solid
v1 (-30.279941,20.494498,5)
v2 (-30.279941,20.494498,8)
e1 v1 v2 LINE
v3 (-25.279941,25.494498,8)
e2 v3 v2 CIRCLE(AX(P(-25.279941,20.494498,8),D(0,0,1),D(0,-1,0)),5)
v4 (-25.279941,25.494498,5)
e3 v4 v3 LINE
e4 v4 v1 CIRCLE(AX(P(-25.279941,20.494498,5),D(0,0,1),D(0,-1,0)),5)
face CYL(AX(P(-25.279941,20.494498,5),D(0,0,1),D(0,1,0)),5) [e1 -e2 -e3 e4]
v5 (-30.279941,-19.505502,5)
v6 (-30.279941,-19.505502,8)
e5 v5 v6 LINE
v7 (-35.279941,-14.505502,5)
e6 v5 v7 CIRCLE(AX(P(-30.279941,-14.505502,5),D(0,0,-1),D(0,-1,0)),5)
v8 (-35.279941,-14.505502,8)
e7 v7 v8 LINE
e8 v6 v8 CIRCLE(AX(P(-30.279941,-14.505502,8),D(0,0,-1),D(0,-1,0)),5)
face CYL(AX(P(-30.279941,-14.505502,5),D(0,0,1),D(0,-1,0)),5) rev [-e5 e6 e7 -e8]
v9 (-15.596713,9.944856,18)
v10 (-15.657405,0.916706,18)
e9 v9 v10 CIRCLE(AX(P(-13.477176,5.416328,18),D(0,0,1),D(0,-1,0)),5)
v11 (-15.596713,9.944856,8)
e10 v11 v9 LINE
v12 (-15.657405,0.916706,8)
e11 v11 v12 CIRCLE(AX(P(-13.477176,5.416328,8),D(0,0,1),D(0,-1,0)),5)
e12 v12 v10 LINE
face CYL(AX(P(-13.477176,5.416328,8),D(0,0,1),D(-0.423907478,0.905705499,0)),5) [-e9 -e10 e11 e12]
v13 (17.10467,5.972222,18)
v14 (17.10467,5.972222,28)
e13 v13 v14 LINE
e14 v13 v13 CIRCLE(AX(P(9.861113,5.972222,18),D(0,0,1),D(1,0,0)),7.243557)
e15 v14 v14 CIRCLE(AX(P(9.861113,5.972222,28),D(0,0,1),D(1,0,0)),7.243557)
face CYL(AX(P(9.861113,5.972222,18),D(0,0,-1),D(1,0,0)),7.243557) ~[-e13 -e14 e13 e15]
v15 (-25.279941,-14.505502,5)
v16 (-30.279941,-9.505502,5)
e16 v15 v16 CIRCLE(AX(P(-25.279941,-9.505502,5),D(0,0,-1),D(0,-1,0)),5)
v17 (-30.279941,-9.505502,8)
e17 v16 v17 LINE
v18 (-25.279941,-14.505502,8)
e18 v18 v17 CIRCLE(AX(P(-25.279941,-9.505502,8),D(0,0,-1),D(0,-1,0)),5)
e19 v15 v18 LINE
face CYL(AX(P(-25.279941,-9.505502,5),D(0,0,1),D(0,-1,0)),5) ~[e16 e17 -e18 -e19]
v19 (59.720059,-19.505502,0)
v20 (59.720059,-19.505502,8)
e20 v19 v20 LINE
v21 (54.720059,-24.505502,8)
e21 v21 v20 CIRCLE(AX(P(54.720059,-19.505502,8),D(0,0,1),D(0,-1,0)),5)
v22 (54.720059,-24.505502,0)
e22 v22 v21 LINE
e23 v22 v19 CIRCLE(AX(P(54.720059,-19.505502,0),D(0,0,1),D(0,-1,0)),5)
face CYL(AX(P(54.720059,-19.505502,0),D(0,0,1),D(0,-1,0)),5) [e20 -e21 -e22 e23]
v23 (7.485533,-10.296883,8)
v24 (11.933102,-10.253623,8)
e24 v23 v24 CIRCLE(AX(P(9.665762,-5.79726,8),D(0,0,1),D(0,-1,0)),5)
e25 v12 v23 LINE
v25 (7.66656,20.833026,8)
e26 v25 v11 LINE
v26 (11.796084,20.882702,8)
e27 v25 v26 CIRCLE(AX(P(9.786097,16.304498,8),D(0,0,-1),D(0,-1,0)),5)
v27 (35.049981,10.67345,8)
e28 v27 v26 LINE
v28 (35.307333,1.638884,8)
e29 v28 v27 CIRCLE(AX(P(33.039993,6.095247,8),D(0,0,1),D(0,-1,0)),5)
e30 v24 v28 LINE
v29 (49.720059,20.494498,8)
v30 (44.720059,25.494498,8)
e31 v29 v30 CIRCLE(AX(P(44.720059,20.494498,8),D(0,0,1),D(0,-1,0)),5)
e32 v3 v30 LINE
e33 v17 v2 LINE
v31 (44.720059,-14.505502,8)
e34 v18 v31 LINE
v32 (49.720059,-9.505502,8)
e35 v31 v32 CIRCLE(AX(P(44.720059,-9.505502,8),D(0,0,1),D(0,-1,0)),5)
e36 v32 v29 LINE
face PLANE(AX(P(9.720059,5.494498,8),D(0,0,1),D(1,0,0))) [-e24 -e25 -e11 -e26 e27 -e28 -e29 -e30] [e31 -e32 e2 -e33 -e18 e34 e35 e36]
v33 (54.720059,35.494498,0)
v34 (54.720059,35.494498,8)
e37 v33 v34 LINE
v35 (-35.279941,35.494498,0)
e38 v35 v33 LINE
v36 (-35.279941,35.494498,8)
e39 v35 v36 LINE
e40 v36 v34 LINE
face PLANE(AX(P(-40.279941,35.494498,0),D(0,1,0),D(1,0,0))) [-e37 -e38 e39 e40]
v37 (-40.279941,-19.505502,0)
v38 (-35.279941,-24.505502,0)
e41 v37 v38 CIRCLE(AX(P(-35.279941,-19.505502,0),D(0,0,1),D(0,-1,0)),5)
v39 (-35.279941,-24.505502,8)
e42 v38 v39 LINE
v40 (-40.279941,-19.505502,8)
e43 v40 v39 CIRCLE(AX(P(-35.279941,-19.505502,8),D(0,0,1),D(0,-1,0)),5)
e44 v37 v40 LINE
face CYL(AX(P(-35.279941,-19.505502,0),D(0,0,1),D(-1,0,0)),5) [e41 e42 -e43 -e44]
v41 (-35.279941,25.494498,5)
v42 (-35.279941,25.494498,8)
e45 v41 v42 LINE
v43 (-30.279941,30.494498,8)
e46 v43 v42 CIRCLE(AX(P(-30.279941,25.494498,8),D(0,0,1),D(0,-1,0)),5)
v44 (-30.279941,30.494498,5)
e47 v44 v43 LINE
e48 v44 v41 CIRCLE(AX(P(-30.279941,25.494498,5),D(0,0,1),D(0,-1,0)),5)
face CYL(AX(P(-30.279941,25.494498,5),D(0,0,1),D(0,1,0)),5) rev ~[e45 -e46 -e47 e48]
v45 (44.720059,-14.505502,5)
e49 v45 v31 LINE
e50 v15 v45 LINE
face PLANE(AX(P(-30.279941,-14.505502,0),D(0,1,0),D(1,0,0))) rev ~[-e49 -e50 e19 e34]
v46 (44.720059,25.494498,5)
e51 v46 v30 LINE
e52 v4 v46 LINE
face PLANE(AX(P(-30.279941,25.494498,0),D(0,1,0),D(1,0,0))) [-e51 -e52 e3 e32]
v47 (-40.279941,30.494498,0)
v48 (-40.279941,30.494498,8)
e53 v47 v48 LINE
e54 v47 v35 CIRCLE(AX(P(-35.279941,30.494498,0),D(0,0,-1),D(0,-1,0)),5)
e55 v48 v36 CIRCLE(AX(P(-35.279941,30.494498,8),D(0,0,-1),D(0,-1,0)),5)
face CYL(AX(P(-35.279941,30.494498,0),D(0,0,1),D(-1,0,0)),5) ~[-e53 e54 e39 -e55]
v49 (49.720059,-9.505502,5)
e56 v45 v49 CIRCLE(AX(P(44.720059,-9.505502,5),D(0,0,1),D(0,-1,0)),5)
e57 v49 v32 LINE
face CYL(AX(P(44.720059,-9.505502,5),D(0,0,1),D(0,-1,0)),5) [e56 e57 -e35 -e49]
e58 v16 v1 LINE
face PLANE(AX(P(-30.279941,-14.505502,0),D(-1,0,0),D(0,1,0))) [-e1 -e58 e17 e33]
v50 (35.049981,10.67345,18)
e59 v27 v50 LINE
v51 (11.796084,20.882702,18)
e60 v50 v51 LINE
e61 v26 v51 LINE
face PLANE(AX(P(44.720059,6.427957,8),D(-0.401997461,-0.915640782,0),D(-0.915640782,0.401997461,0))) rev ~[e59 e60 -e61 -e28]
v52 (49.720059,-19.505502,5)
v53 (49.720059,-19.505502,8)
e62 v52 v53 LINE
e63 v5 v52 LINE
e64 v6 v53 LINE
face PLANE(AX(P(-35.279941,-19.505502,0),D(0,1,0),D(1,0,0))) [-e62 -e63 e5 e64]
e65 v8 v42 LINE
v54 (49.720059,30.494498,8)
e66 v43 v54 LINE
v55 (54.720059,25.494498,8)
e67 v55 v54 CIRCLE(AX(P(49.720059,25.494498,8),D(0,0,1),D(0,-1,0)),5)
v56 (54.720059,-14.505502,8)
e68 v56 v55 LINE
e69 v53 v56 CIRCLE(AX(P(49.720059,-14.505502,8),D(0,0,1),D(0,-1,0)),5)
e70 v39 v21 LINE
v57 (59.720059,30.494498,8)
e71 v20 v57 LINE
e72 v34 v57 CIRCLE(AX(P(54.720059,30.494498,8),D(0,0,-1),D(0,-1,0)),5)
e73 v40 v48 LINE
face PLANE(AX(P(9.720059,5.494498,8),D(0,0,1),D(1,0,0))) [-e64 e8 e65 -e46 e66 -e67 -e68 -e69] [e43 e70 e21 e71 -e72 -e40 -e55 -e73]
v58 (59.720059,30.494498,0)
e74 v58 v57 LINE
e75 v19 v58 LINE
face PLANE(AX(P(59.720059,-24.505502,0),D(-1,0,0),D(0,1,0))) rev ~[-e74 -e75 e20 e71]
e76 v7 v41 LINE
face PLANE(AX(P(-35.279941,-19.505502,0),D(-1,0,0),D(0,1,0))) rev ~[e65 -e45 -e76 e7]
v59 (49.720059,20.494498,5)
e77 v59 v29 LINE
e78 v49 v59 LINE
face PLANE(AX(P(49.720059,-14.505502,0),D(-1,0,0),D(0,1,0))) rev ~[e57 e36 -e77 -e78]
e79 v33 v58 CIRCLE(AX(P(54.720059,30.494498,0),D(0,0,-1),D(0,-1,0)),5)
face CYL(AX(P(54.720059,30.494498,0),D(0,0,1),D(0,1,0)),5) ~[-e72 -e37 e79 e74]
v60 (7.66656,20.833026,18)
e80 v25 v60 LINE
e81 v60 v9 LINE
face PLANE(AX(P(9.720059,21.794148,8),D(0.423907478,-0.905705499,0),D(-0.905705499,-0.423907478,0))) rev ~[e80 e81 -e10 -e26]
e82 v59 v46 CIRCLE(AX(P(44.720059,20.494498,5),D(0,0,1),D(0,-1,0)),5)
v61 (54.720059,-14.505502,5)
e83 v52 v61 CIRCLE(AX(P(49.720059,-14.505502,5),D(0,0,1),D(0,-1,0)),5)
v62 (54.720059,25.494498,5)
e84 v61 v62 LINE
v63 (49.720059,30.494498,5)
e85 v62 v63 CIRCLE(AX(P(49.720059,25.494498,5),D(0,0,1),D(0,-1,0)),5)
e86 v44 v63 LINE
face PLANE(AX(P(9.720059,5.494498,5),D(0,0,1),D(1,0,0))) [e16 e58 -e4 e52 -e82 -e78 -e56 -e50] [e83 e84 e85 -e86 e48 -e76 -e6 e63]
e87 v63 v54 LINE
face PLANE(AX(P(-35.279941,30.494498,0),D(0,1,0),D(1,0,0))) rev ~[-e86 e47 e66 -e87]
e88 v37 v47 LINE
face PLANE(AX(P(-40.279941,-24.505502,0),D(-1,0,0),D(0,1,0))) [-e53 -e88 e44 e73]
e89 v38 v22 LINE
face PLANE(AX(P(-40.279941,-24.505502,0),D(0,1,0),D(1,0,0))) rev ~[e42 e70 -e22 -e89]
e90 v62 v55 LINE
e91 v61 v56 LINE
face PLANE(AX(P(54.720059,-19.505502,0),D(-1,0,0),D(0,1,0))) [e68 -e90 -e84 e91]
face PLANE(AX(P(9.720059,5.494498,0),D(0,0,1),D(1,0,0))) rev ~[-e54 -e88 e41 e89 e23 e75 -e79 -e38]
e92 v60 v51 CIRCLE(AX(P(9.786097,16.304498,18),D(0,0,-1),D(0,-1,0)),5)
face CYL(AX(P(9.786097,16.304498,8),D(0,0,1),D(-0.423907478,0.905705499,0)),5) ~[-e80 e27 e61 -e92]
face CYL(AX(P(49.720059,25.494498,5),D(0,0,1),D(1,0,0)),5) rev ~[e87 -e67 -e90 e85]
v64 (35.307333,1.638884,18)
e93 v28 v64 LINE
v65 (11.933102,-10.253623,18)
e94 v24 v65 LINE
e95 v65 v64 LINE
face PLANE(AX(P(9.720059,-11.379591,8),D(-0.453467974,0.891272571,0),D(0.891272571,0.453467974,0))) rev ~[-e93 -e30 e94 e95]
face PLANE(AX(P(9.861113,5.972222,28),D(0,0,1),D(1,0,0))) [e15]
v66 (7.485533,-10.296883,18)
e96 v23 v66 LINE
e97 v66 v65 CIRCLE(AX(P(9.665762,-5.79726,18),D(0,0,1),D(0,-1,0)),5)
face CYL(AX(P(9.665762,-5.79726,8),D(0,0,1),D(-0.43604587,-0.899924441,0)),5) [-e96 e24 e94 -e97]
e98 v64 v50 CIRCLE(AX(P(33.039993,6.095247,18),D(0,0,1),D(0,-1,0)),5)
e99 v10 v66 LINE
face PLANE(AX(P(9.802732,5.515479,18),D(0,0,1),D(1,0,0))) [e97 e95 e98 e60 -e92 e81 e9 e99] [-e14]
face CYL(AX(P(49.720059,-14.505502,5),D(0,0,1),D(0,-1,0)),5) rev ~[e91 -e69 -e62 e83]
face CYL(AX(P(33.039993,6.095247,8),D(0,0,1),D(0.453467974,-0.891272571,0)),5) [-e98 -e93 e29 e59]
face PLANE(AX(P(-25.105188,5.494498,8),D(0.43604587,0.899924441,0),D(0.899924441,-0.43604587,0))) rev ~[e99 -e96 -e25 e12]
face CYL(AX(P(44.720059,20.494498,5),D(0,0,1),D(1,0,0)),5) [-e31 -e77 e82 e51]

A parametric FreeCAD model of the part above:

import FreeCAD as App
import Part
import Sketcher

V = App.Vector
Q = App.Units.Quantity


def edges_at(feature, points):
    """Names of the edges that pass closest to the given points."""
    edges = feature.Shape.Edges
    near = lambda p: min(range(len(edges)), key=lambda i: edges[i].distToShape(Part.Vertex(*p))[0])
    return sorted({f"Edge{near(p) + 1}" for p in points})

doc = App.newDocument("Part")
body = doc.addObject("PartDesign::Body", "Body")
body.AllowCompound = True

sketch1 = body.newObject("Sketcher::SketchObject", "Sketch")
sketch1.AttachmentSupport = (doc.getObject("XY_Plane"), [""])
sketch1.MapMode = "FlatFace"
sketch1.addGeometry([
    Part.LineSegment(V(-40, 35, 0), V(-40, -25, 0)),
    Part.LineSegment(V(-40, -25, 0), V(60, -25, 0)),
    Part.LineSegment(V(60, -25, 0), V(60, 35, 0)),
    Part.LineSegment(V(60, 35, 0), V(-40, 35, 0)),
    Part.LineSegment(V(55, -20, 0), V(-35, -20, 0)),
    Part.LineSegment(V(-35, -20, 0), V(-35, 30, 0)),
    Part.LineSegment(V(-35, 30, 0), V(55, 30, 0)),
    Part.LineSegment(V(55, 30, 0), V(55, -20, 0)),
    Part.LineSegment(V(-30, 25, 0), V(-30, -15, 0)),
    Part.LineSegment(V(-30, -15, 0), V(50, -15, 0)),
    Part.LineSegment(V(50, -15, 0), V(50, 25, 0)),
    Part.LineSegment(V(50, 25, 0), V(-30, 25, 0)),
], False)
sketch1.addConstraint([
    Sketcher.Constraint("Coincident", 0, 2, 1, 1),
    Sketcher.Constraint("Coincident", 1, 2, 2, 1),
    Sketcher.Constraint("Coincident", 2, 2, 3, 1),
    Sketcher.Constraint("Coincident", 3, 2, 0, 1),
    Sketcher.Constraint("Coincident", 4, 2, 5, 1),
    Sketcher.Constraint("Coincident", 5, 2, 6, 1),
    Sketcher.Constraint("Coincident", 6, 2, 7, 1),
    Sketcher.Constraint("Coincident", 7, 2, 4, 1),
    Sketcher.Constraint("Coincident", 8, 2, 9, 1),
    Sketcher.Constraint("Coincident", 9, 2, 10, 1),
    Sketcher.Constraint("Coincident", 10, 2, 11, 1),
    Sketcher.Constraint("Coincident", 11, 2, 8, 1),
    Sketcher.Constraint("Vertical", 0),
    Sketcher.Constraint("Horizontal", 1),
    Sketcher.Constraint("Vertical", 2),
    Sketcher.Constraint("Horizontal", 3),
    Sketcher.Constraint("Horizontal", 4),
    Sketcher.Constraint("Vertical", 5),
    Sketcher.Constraint("Horizontal", 6),
    Sketcher.Constraint("Vertical", 7),
    Sketcher.Constraint("Vertical", 8),
    Sketcher.Constraint("Horizontal", 9),
    Sketcher.Constraint("Vertical", 10),
    Sketcher.Constraint("Horizontal", 11),
    Sketcher.Constraint("DistanceX", 1, 1, 1, 2, Q("100 mm")),
    Sketcher.Constraint("DistanceX", 4, 2, 4, 1, Q("90 mm")),
    Sketcher.Constraint("DistanceX", 9, 1, 9, 2, Q("80 mm")),
    Sketcher.Constraint("DistanceY", 0, 2, 0, 1, Q("60 mm")),
    Sketcher.Constraint("DistanceY", 5, 1, 5, 2, Q("50 mm")),
    Sketcher.Constraint("DistanceY", 8, 2, 8, 1, Q("40 mm")),
    Sketcher.Constraint("DistanceX", 0, 2, 4, 2, Q("5 mm")),
    Sketcher.Constraint("DistanceY", 0, 2, 4, 2, Q("5 mm")),
    Sketcher.Constraint("DistanceX", 4, 2, 8, 2, Q("5 mm")),
    Sketcher.Constraint("DistanceY", 4, 2, 8, 2, Q("5 mm")),
    Sketcher.Constraint("DistanceY", 0, 2, -1, 1, Q("24.505502 mm")),
    Sketcher.Constraint("DistanceX", 0, 2, -1, 1, Q("40.279941 mm")),
])
pad1 = body.newObject("PartDesign::Pad", "Pad")
pad1.Profile = sketch1
pad1.Length = 8

sketch2 = body.newObject("Sketcher::SketchObject", "Sketch001")
sketch2.AttachmentSupport = (doc.getObject("XY_Plane"), [""])
sketch2.MapMode = "FlatFace"
sketch2.addGeometry([
    Part.LineSegment(V(-35, 30, 0), V(-35, -20, 0)),
    Part.LineSegment(V(-35, -20, 0), V(55, -20, 0)),
    Part.LineSegment(V(55, -20, 0), V(55, 30, 0)),
    Part.LineSegment(V(55, 30, 0), V(-35, 30, 0)),
    Part.LineSegment(V(50, -15, 0), V(-30, -15, 0)),
    Part.LineSegment(V(-30, -15, 0), V(-30, 25, 0)),
    Part.LineSegment(V(-30, 25, 0), V(50, 25, 0)),
    Part.LineSegment(V(50, 25, 0), V(50, -15, 0)),
], False)
sketch2.addConstraint([
    Sketcher.Constraint("Coincident", 0, 2, 1, 1),
    Sketcher.Constraint("Coincident", 1, 2, 2, 1),
    Sketcher.Constraint("Coincident", 2, 2, 3, 1),
    Sketcher.Constraint("Coincident", 3, 2, 0, 1),
    Sketcher.Constraint("Coincident", 4, 2, 5, 1),
    Sketcher.Constraint("Coincident", 5, 2, 6, 1),
    Sketcher.Constraint("Coincident", 6, 2, 7, 1),
    Sketcher.Constraint("Coincident", 7, 2, 4, 1),
    Sketcher.Constraint("Vertical", 0),
    Sketcher.Constraint("Horizontal", 1),
    Sketcher.Constraint("Vertical", 2),
    Sketcher.Constraint("Horizontal", 3),
    Sketcher.Constraint("Horizontal", 4),
    Sketcher.Constraint("Vertical", 5),
    Sketcher.Constraint("Horizontal", 6),
    Sketcher.Constraint("Vertical", 7),
    Sketcher.Constraint("DistanceX", 1, 1, 1, 2, Q("90 mm")),
    Sketcher.Constraint("DistanceX", 4, 2, 4, 1, Q("80 mm")),
    Sketcher.Constraint("DistanceY", 0, 2, 0, 1, Q("50 mm")),
    Sketcher.Constraint("DistanceY", 5, 1, 5, 2, Q("40 mm")),
    Sketcher.Constraint("DistanceX", 0, 2, 4, 2, Q("5 mm")),
    Sketcher.Constraint("DistanceY", 0, 2, 4, 2, Q("5 mm")),
    Sketcher.Constraint("DistanceY", 0, 2, -1, 1, Q("19.505502 mm")),
    Sketcher.Constraint("DistanceX", 0, 2, -1, 1, Q("35.279941 mm")),
])
pad2 = body.newObject("PartDesign::Pad", "Pad001")
pad2.Profile = sketch2
pad2.Length = 5

sketch3 = body.newObject("Sketcher::SketchObject", "Sketch002")
sketch3.AttachmentSupport = (doc.getObject("XY_Plane"), [""])
sketch3.MapMode = "FlatFace"
sketch3.AttachmentOffset = App.Placement(V(0, 0, 8), App.Rotation())
sketch3.addGeometry([
    Part.LineSegment(V(10, 22, 0), V(-25, 5, 0)),
    Part.LineSegment(V(-25, 5, 0), V(10, -11, 0)),
    Part.LineSegment(V(10, -11, 0), V(45, 6, 0)),
    Part.LineSegment(V(45, 6, 0), V(10, 22, 0)),
], False)
sketch3.addConstraint([
    Sketcher.Constraint("Coincident", 0, 2, 1, 1),
    Sketcher.Constraint("Coincident", 1, 2, 2, 1),
    Sketcher.Constraint("Coincident", 2, 2, 3, 1),
    Sketcher.Constraint("Coincident", 3, 2, 0, 1),
    Sketcher.Constraint("Vertical", 1, 2, 3, 2),
    Sketcher.Constraint("DistanceX", 1, 2, 2, 2, Q("35 mm")),
    Sketcher.Constraint("Distance", 0, Q("38.450961 mm")),
    Sketcher.Constraint("DistanceX", -1, 1, 1, 2, Q("9.720059 mm")),
    Sketcher.Constraint("DistanceY", 1, 2, -1, 1, Q("11.379591 mm")),
    Sketcher.Constraint("DistanceY", -1, 1, 3, 2, Q("21.794148 mm")),
    Sketcher.Constraint("DistanceY", 1, 2, 0, 2, Q("16.874089 mm")),
    Sketcher.Constraint("DistanceY", 1, 2, 2, 2, Q("17.807548 mm")),
])
pad3 = body.newObject("PartDesign::Pad", "Pad002")
pad3.Profile = sketch3
pad3.Length = 10
doc.recompute()

fillet = body.newObject("PartDesign::Fillet", "Fillet")
fillet.Base = (pad3, edges_at(pad3, [
    (54.72, -19.506, 6.5),
    (-35.28, -19.506, 6.5),
    (-35.28, 30.494, 6.5),
    (54.72, 30.494, 6.5),
    (-30.28, 25.494, 6.5),
    (-30.28, -14.506, 6.5),
    (49.72, -14.506, 6.5),
    (49.72, 25.494, 6.5),
    (44.72, 6.428, 13),
    (9.72, 21.794, 13),
    (9.72, -11.38, 13),
    (-25.105, 5.494, 13),
]))
fillet.Radius = 5

sketch4 = body.newObject("Sketcher::SketchObject", "Sketch003")
sketch4.AttachmentSupport = (doc.getObject("XY_Plane"), [""])
sketch4.MapMode = "FlatFace"
sketch4.AttachmentOffset = App.Placement(V(0, 0, 18), App.Rotation())
sketch4.addGeometry(Part.Circle(V(10, 6, 0), V(0, 0, 1), 7), False)
sketch4.addConstraint([
    Sketcher.Constraint("Diameter", 0, Q("14.487114 mm")),
    Sketcher.Constraint("DistanceX", -1, 1, 0, 3, Q("9.861113 mm")),
    Sketcher.Constraint("DistanceY", -1, 1, 0, 3, Q("5.972222 mm")),
])
pad4 = body.newObject("PartDesign::Pad", "Pad003")
pad4.Profile = sketch4
pad4.Length = 10
doc.recompute()

fillet2 = body.newObject("PartDesign::Fillet", "Fillet001")
fillet2.Base = (pad4, edges_at(pad4, [
    (59.72, -24.506, 4),
    (-40.28, -24.506, 4),
    (-40.28, 35.494, 4),
    (59.72, 35.494, 4),
]))
fillet2.Radius = 5

doc.recompute()
